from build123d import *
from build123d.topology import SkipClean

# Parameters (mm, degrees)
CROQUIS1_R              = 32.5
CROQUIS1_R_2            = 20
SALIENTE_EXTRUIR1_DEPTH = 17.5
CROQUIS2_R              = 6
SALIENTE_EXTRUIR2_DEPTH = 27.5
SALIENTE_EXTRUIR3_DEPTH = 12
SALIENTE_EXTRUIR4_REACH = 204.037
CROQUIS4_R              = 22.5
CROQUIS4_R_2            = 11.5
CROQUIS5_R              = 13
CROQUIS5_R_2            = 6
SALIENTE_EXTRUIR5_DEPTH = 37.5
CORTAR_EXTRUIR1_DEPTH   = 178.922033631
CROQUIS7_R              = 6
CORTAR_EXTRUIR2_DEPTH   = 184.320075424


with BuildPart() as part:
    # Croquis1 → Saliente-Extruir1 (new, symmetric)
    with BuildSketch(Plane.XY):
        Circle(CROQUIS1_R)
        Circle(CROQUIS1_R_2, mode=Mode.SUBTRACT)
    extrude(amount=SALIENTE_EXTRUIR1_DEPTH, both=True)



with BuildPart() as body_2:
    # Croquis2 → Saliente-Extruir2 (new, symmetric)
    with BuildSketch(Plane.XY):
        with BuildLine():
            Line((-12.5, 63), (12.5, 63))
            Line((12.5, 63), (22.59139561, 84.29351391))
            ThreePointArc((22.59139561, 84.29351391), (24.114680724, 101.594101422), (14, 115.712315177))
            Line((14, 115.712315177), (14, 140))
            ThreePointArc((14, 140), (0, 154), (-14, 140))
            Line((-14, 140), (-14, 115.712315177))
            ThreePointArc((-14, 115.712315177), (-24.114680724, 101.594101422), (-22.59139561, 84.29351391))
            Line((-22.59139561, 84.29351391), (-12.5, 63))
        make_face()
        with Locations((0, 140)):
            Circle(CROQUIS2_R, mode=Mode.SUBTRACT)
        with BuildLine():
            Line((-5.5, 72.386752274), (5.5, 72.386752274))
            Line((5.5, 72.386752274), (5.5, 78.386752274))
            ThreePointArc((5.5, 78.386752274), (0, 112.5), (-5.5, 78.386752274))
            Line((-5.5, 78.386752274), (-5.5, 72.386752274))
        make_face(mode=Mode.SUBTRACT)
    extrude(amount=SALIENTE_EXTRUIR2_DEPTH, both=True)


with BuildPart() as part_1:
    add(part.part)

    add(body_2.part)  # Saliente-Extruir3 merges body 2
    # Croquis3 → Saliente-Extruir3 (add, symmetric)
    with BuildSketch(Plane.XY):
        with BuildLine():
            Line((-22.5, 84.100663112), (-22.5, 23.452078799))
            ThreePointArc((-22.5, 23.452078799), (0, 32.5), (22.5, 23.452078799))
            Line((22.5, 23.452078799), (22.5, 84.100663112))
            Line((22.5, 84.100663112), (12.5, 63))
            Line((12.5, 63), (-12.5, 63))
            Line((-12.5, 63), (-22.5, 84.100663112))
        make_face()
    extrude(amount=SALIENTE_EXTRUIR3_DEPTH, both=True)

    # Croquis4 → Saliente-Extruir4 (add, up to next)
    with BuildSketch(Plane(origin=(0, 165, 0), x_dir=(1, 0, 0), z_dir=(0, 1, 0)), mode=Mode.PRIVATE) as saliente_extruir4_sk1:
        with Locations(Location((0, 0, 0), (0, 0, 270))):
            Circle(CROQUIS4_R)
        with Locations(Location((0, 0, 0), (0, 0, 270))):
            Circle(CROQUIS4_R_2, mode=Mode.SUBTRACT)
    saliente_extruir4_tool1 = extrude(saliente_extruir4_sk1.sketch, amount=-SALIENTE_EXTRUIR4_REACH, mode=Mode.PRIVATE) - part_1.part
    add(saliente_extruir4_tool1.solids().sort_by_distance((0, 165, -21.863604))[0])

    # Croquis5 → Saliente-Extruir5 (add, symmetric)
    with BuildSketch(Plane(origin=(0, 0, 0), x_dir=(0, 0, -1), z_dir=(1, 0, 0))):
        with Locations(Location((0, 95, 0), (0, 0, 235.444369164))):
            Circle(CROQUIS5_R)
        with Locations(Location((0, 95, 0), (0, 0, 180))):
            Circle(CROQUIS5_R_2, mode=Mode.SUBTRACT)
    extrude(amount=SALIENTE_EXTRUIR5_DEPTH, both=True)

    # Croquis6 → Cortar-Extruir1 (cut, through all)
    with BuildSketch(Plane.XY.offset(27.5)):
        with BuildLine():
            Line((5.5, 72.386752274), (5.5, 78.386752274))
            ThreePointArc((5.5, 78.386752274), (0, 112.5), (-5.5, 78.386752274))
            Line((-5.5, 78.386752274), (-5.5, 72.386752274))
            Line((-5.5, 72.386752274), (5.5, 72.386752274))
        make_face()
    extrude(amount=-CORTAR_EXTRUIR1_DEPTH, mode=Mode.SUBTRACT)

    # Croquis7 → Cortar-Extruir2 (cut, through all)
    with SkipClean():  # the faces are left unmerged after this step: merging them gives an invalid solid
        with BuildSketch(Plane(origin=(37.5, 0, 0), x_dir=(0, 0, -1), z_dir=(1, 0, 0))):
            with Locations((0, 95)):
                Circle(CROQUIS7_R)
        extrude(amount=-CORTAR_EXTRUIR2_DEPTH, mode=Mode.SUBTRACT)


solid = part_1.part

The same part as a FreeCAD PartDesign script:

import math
import FreeCAD as App
import Part
import Sketcher
Q = App.Units.Quantity

doc = App.newDocument("Part")
params = doc.addObject("Spreadsheet::Sheet", "Params")
for row, (alias, value) in enumerate([
    ("sketch1_diameter", "65 mm"),
    ("sketch1_diameter2", "40 mm"),
    ("pad1_length", "35 mm"),
    ("sketch2_diameter", "12 mm"),
    ("sketch2_radius", "25 mm"),
    ("sketch2_radius2", "14 mm"),
    ("sketch2_radius3", "17.5 mm"),
    ("sketch2_width", "25 mm"),
    ("pad2_length", "55 mm"),
    ("sketch3_radius", "32.5 mm"),
    ("sketch3_width", "25 mm"),
    ("pad3_length", "24 mm"),
    ("sketch4_diameter", "45 mm"),
    ("sketch4_diameter2", "23 mm"),
    ("sketch5_diameter", "26 mm"),
    ("sketch5_diameter2", "12 mm"),
    ("pad5_length", "75 mm"),
    ("sketch6_radius", "17.5 mm"),
    ("sketch6_width", "11 mm"),
    ("sketch6_height", "6 mm"),
    ("sketch7_diameter", "12 mm"),
], start=1):
    params.set(f"A{row}", alias)
    params.set(f"B{row}", "=" + value)
    params.setAlias(f"B{row}", alias)

body = doc.addObject("PartDesign::Body", "Body")

# Sketch on XY plane
sketch1 = body.newObject("Sketcher::SketchObject", "Sketch")
sketch1.AttachmentSupport = (doc.getObject("XY_Plane"), [""])
sketch1.MapMode = "FlatFace"
sketch1.addGeometry([
    Part.Circle(App.Vector(0, 0, 0), App.Vector(0, 0, 1), 32.5),
    Part.Circle(App.Vector(0, 0, 0), App.Vector(0, 0, 1), 20),
], False)
sketch1.addConstraint([
    Sketcher.Constraint("Coincident", 0, 3, -1, 1),
    Sketcher.Constraint("Coincident", 1, 3, -1, 1),
    Sketcher.Constraint("Diameter", 0, Q("65 mm")),
    Sketcher.Constraint("Diameter", 1, Q("40 mm")),
])
sketch1.setExpression("Constraints[2]", "Params.sketch1_diameter")
sketch1.setExpression("Constraints[3]", "Params.sketch1_diameter2")
pad1 = body.newObject("PartDesign::Pad", "Pad")
pad1.Profile = sketch1
pad1.setExpression("Length", "Params.pad1_length")
pad1.Midplane = True
body2 = doc.addObject("PartDesign::Body", "Body001")

# Sketch on XY plane
sketch2 = body2.newObject("Sketcher::SketchObject", "Sketch001")
sketch2.AttachmentSupport = (doc.getObject("XY_Plane001"), [""])
sketch2.MapMode = "FlatFace"
sketch2.addGeometry([
    Part.LineSegment(App.Vector(-12.5, 63, 0), App.Vector(12.5, 63, 0)),  # 0
    Part.LineSegment(App.Vector(12.5, 63, 0), App.Vector(22.591396, 84.293514, 0)),  # 1
    Part.ArcOfCircle(Part.Circle(App.Vector(0, 95, 0), App.Vector(0, 0, 1), 25), math.radians(-25.357151), math.radians(55.944202)),  # 2
    Part.LineSegment(App.Vector(14, 115.712315, 0), App.Vector(14, 140, 0)),  # 3
    Part.ArcOfCircle(Part.Circle(App.Vector(0, 140, 0), App.Vector(0, 0, 1), 14), math.radians(0), math.radians(180)),  # 4
    Part.LineSegment(App.Vector(-14, 140, 0), App.Vector(-14, 115.712315, 0)),  # 5
    Part.ArcOfCircle(Part.Circle(App.Vector(0, 95, 0), App.Vector(0, 0, 1), 25), math.radians(124.055798), math.radians(205.357151)),  # 6
    Part.LineSegment(App.Vector(-22.591396, 84.293514, 0), App.Vector(-12.5, 63, 0)),  # 7
    Part.LineSegment(App.Vector(5.5, 72.386752, 0), App.Vector(-5.5, 72.386752, 0)),  # 8
    Part.LineSegment(App.Vector(-5.5, 72.386752, 0), App.Vector(-5.5, 78.386752, 0)),  # 9
    Part.ArcOfCircle(Part.Circle(App.Vector(0, 95, 0), App.Vector(0, 0, 1), 17.5), math.radians(-71.682302), math.radians(251.682302)),  # 10
    Part.LineSegment(App.Vector(5.5, 78.386752, 0), App.Vector(5.5, 72.386752, 0)),  # 11
    Part.Circle(App.Vector(0, 140, 0), App.Vector(0, 0, 1), 6),  # 12
], False)
sketch2.addConstraint([
    Sketcher.Constraint("Coincident", 0, 2, 1, 1),
    Sketcher.Constraint("Tangent", 1, 2, 2, 1),
    Sketcher.Constraint("Coincident", 2, 2, 3, 1),
    Sketcher.Constraint("Tangent", 3, 2, 4, 1),
    Sketcher.Constraint("Tangent", 4, 2, 5, 1),
    Sketcher.Constraint("Coincident", 5, 2, 6, 1),
    Sketcher.Constraint("Tangent", 6, 2, 7, 1),
    Sketcher.Constraint("Coincident", 7, 2, 0, 1),
    Sketcher.Constraint("Coincident", 8, 2, 9, 1),
    Sketcher.Constraint("Coincident", 9, 2, 10, 2),
    Sketcher.Constraint("Coincident", 10, 1, 11, 1),
    Sketcher.Constraint("Coincident", 11, 2, 8, 1),
    Sketcher.Constraint("Horizontal", 0),
    Sketcher.Constraint("Vertical", 3),
    Sketcher.Constraint("Vertical", 5),
    Sketcher.Constraint("Horizontal", 8),
    Sketcher.Constraint("Vertical", 9),
    Sketcher.Constraint("Vertical", 11),
    Sketcher.Constraint("Coincident", 6, 3, 2, 3),
    Sketcher.Constraint("Coincident", 10, 3, 2, 3),
    Sketcher.Constraint("Coincident", 12, 3, 4, 3),
    Sketcher.Constraint("Equal", 2, 6),
    Sketcher.Constraint("Symmetric", 2, 2, 5, 2, -2),
    Sketcher.Constraint("Horizontal", 1, 2, 6, 2),
    Sketcher.Constraint("Horizontal", 9, 2, 10, 1),
    Sketcher.Constraint("Diameter", 12, Q("12 mm")),
    Sketcher.Constraint("Radius", 2, Q("25 mm")),
    Sketcher.Constraint("Radius", 4, Q("14 mm")),
    Sketcher.Constraint("Radius", 10, Q("17.5 mm")),
    Sketcher.Constraint("DistanceX", 0, 1, 0, 2, Q("25 mm")),
    Sketcher.Constraint("DistanceX", 8, 2, 8, 1, Q("11 mm")),
    Sketcher.Constraint("DistanceY", 9, 1, 9, 2, Q("6 mm")),
    Sketcher.Constraint("DistanceY", -1, 1, 2, 3, Q("95 mm")),
    Sketcher.Constraint("DistanceY", -1, 1, 4, 3, Q("140 mm")),
    Sketcher.Constraint("DistanceY", -1, 1, 0, 2, Q("63 mm")),
])
sketch2.setExpression("Constraints[25]", "Params.sketch2_diameter")
sketch2.setExpression("Constraints[26]", "Params.sketch2_radius")
sketch2.setExpression("Constraints[27]", "Params.sketch2_radius2")
sketch2.setExpression("Constraints[28]", "Params.sketch2_radius3")
sketch2.setExpression("Constraints[29]", "Params.sketch2_width")
pad2 = body2.newObject("PartDesign::Pad", "Pad001")
pad2.Profile = sketch2
pad2.setExpression("Length", "Params.pad2_length")
pad2.Midplane = True
body.AllowCompound = True
doc.recompute()

boolean = body.newObject("PartDesign::Boolean", "Boolean")
boolean.Type = "Fuse"
boolean.addObjects([body2])

# Sketch on XY plane
sketch3 = body.newObject("Sketcher::SketchObject", "Sketch002")
sketch3.AttachmentSupport = (doc.getObject("XY_Plane"), [""])
sketch3.MapMode = "FlatFace"
sketch3.addGeometry([
    Part.LineSegment(App.Vector(-22.5, 84.100663, 0), App.Vector(-22.5, 23.452079, 0)),  # 0
    Part.ArcOfCircle(Part.Circle(App.Vector(0, 0, 0), App.Vector(0, 0, 1), 32.5), math.radians(46.186939), math.radians(133.813061)),  # 1
    Part.LineSegment(App.Vector(22.5, 23.452079, 0), App.Vector(22.5, 84.100663, 0)),  # 2
    Part.LineSegment(App.Vector(22.5, 84.100663, 0), App.Vector(12.5, 63, 0)),  # 3
    Part.LineSegment(App.Vector(12.5, 63, 0), App.Vector(-12.5, 63, 0)),  # 4
    Part.LineSegment(App.Vector(-12.5, 63, 0), App.Vector(-22.5, 84.100663, 0)),  # 5
], False)
sketch3.addConstraint([
    Sketcher.Constraint("Coincident", 0, 2, 1, 2),
    Sketcher.Constraint("Coincident", 1, 1, 2, 1),
    Sketcher.Constraint("Coincident", 2, 2, 3, 1),
    Sketcher.Constraint("Coincident", 3, 2, 4, 1),
    Sketcher.Constraint("Coincident", 4, 2, 5, 1),
    Sketcher.Constraint("Coincident", 5, 2, 0, 1),
    Sketcher.Constraint("Vertical", 0),
    Sketcher.Constraint("Vertical", 2),
    Sketcher.Constraint("Horizontal", 4),
    Sketcher.Constraint("Coincident", 1, 3, -1, 1),
    Sketcher.Constraint("Symmetric", 2, 2, 5, 2, -2),
    Sketcher.Constraint("Equal", 3, 5),
    Sketcher.Constraint("Radius", 1, Q("32.5 mm")),
    Sketcher.Constraint("DistanceX", 4, 2, 4, 1, Q("25 mm")),
    Sketcher.Constraint("DistanceY", -1, 1, 3, 2, Q("63 mm")),
    Sketcher.Constraint("DistanceX", 0, 2, 1, 1, Q("45 mm")),
    Sketcher.Constraint("Distance", 3, Q("23.350332 mm")),
])
sketch3.setExpression("Constraints[12]", "Params.sketch3_radius")
sketch3.setExpression("Constraints[13]", "Params.sketch3_width")
pad3 = body.newObject("PartDesign::Pad", "Pad002")
pad3.Profile = sketch3
pad3.setExpression("Length", "Params.pad3_length")
pad3.Midplane = True

# Sketch on XZ plane
sketch4 = body.newObject("Sketcher::SketchObject", "Sketch003")
sketch4.AttachmentSupport = (doc.getObject("XZ_Plane"), [""])
sketch4.MapMode = "FlatFace"
sketch4.AttachmentOffset = App.Placement(App.Vector(0, 0, -165), App.Rotation())
sketch4.addGeometry([
    Part.Circle(App.Vector(0, 0, 0), App.Vector(0, 0, 1), 22.5),
    Part.Circle(App.Vector(0, 0, 0), App.Vector(0, 0, 1), 11.5),
], False)
sketch4.addConstraint([
    Sketcher.Constraint("Coincident", 0, 3, -1, 1),
    Sketcher.Constraint("Coincident", 1, 3, -1, 1),
    Sketcher.Constraint("Diameter", 0, Q("45 mm")),
    Sketcher.Constraint("Diameter", 1, Q("23 mm")),
])
sketch4.setExpression("Constraints[2]", "Params.sketch4_diameter")
sketch4.setExpression("Constraints[3]", "Params.sketch4_diameter2")
pad4 = body.newObject("PartDesign::Pad", "Pad003")
pad4.Profile = sketch4
pad4.Type = "UpToFirst"

# Sketch on YZ plane
sketch5 = body.newObject("Sketcher::SketchObject", "Sketch004")
sketch5.AttachmentSupport = (doc.getObject("YZ_Plane"), [""])
sketch5.MapMode = "FlatFace"
sketch5.addGeometry([
    Part.Circle(App.Vector(95, 0, 0), App.Vector(0, 0, 1), 13),
    Part.Circle(App.Vector(95, 0, 0), App.Vector(0, 0, 1), 6),
], False)
sketch5.addConstraint([
    Sketcher.Constraint("Coincident", 1, 3, 0, 3),
    Sketcher.Constraint("PointOnObject", 0, 3, -1),
    Sketcher.Constraint("Diameter", 0, Q("26 mm")),
    Sketcher.Constraint("Diameter", 1, Q("12 mm")),
    Sketcher.Constraint("DistanceX", -1, 1, 0, 3, Q("95 mm")),
])
sketch5.setExpression("Constraints[2]", "Params.sketch5_diameter")
sketch5.setExpression("Constraints[3]", "Params.sketch5_diameter2")
pad5 = body.newObject("PartDesign::Pad", "Pad004")
pad5.Profile = sketch5
pad5.setExpression("Length", "Params.pad5_length")
pad5.Midplane = True

# Sketch on XY plane
sketch6 = body.newObject("Sketcher::SketchObject", "Sketch005")
sketch6.AttachmentSupport = (doc.getObject("XY_Plane"), [""])
sketch6.MapMode = "FlatFace"
sketch6.AttachmentOffset = App.Placement(App.Vector(0, 0, 27.5), App.Rotation())
sketch6.addGeometry([
    Part.LineSegment(App.Vector(5.5, 72.386752, 0), App.Vector(5.5, 78.386752, 0)),
    Part.ArcOfCircle(Part.Circle(App.Vector(0, 95, 0), App.Vector(0, 0, 1), 17.5), math.radians(-71.682302), math.radians(251.682302)),
    Part.LineSegment(App.Vector(-5.5, 78.386752, 0), App.Vector(-5.5, 72.386752, 0)),
    Part.LineSegment(App.Vector(-5.5, 72.386752, 0), App.Vector(5.5, 72.386752, 0)),
], False)
sketch6.addConstraint([
    Sketcher.Constraint("Coincident", 0, 2, 1, 1),
    Sketcher.Constraint("Coincident", 1, 2, 2, 1),
    Sketcher.Constraint("Coincident", 2, 2, 3, 1),
    Sketcher.Constraint("Coincident", 3, 2, 0, 1),
    Sketcher.Constraint("Vertical", 0),
    Sketcher.Constraint("Vertical", 2),
    Sketcher.Constraint("Horizontal", 3),
    Sketcher.Constraint("Symmetric", 0, 2, 1, 2, -2),
    Sketcher.Constraint("Radius", 1, Q("17.5 mm")),
    Sketcher.Constraint("DistanceX", 3, 1, 3, 2, Q("11 mm")),
    Sketcher.Constraint("DistanceY", 0, 1, 0, 2, Q("6 mm")),
    Sketcher.Constraint("DistanceY", -1, 1, 1, 3, Q("95 mm")),
])
sketch6.setExpression("Constraints[8]", "Params.sketch6_radius")
sketch6.setExpression("Constraints[9]", "Params.sketch6_width")
sketch6.setExpression("Constraints[10]", "Params.sketch6_height")
pocket1 = body.newObject("PartDesign::Pocket", "Pocket")
pocket1.Profile = sketch6
pocket1.Type = "ThroughAll"

# Sketch on YZ plane
sketch7 = body.newObject("Sketcher::SketchObject", "Sketch006")
sketch7.AttachmentSupport = (doc.getObject("YZ_Plane"), [""])
sketch7.MapMode = "FlatFace"
sketch7.AttachmentOffset = App.Placement(App.Vector(0, 0, 37.5), App.Rotation())
sketch7.addGeometry(Part.Circle(App.Vector(95, 0, 0), App.Vector(0, 0, 1), 6), False)
sketch7.addConstraint([
    Sketcher.Constraint("PointOnObject", 0, 3, -1),
    Sketcher.Constraint("Diameter", 0, Q("12 mm")),
    Sketcher.Constraint("DistanceX", -1, 1, 0, 3, Q("95 mm")),
])
sketch7.setExpression("Constraints[1]", "Params.sketch7_diameter")
pocket2 = body.newObject("PartDesign::Pocket", "Pocket001")
pocket2.Profile = sketch7
pocket2.Type = "ThroughAll"

doc.recompute()
